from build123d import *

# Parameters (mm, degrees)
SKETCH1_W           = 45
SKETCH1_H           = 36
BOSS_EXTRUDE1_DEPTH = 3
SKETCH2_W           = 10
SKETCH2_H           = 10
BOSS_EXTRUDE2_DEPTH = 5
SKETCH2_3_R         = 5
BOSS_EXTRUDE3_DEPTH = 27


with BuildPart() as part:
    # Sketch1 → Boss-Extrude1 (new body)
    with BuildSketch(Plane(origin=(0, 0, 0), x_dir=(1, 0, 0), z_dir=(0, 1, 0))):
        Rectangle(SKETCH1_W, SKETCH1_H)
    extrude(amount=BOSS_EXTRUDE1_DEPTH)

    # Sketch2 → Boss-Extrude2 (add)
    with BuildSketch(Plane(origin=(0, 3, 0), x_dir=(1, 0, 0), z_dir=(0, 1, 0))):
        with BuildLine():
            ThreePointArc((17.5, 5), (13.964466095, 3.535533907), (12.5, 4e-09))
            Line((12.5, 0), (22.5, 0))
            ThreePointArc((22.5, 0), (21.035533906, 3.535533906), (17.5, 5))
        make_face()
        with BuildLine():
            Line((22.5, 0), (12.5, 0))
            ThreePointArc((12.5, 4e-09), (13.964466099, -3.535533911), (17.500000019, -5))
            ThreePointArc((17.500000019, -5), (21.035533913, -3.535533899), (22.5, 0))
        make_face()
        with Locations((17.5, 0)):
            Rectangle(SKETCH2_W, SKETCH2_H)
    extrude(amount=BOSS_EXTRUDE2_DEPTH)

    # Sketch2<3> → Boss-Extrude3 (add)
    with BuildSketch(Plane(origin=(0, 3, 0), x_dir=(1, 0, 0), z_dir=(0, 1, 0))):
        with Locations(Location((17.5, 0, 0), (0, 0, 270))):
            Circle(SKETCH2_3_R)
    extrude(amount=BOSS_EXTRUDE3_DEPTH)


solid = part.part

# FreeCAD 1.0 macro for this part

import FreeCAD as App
import Part
import Sketcher
from FreeCAD import Vector
Q = App.Units.Quantity

doc = App.newDocument("Part")
params = doc.addObject("Spreadsheet::Sheet", "Params")
for row, (alias, value) in enumerate([
    ("sketch1_width", "45 mm"),
    ("sketch1_height", "36 mm"),
    ("pad1_length", "3 mm"),
    ("sketch2_width", "10 mm"),
    ("pad2_length", "5 mm"),
    ("sketch3_diameter", "10 mm"),
    ("pad3_length", "27 mm"),
], start=1):
    params.set(f"A{row}", alias)
    params.set(f"B{row}", "=" + value)
    params.setAlias(f"B{row}", alias)

body = doc.addObject("PartDesign::Body", "Body")

# Sketch on XZ plane
sketch1 = body.newObject("Sketcher::SketchObject", "Sketch")
sketch1.AttachmentSupport = (doc.getObject("XZ_Plane"), [""])
sketch1.MapMode = "FlatFace"
sketch1.addGeometry(Part.LineSegment(Vector(-22.5, -18, 0), Vector(-22.5, 18, 0)), False)
sketch1.addGeometry(Part.LineSegment(Vector(-22.5, 18, 0), Vector(22.5, 18, 0)), False)
sketch1.addGeometry(Part.LineSegment(Vector(22.5, 18, 0), Vector(22.5, -18, 0)), False)
sketch1.addGeometry(Part.LineSegment(Vector(22.5, -18, 0), Vector(-22.5, -18, 0)), False)
sketch1.addConstraint(Sketcher.Constraint("Coincident", 0, 2, 1, 1))
sketch1.addConstraint(Sketcher.Constraint("Coincident", 1, 2, 2, 1))
sketch1.addConstraint(Sketcher.Constraint("Coincident", 2, 2, 3, 1))
sketch1.addConstraint(Sketcher.Constraint("Coincident", 3, 2, 0, 1))
sketch1.addConstraint(Sketcher.Constraint("Vertical", 0))
sketch1.addConstraint(Sketcher.Constraint("Horizontal", 1))
sketch1.addConstraint(Sketcher.Constraint("Vertical", 2))
sketch1.addConstraint(Sketcher.Constraint("Horizontal", 3))
sketch1.addConstraint(Sketcher.Constraint("Symmetric", 0, 2, 2, 2, -1, 1))
sketch1.addConstraint(Sketcher.Constraint("DistanceX", 1, 1, 1, 2, Q("45 mm")))
sketch1.addConstraint(Sketcher.Constraint("DistanceY", 0, 1, 0, 2, Q("36 mm")))
sketch1.setExpression("Constraints[9]", "Params.sketch1_width")
sketch1.setExpression("Constraints[10]", "Params.sketch1_height")
pad1 = body.newObject("PartDesign::Pad", "Pad")
pad1.Profile = sketch1
pad1.setExpression("Length", "Params.pad1_length")
pad1.Reversed = True

# Sketch on XZ plane
sketch2 = body.newObject("Sketcher::SketchObject", "Sketch001")
sketch2.AttachmentSupport = (doc.getObject("XZ_Plane"), [""])
sketch2.MapMode = "FlatFace"
sketch2.AttachmentOffset = App.Placement(Vector(0, 0, -3), App.Rotation())
sketch2.addGeometry(Part.LineSegment(Vector(12.5, -5, 0), Vector(12.5, 5, 0)), False)
sketch2.addGeometry(Part.LineSegment(Vector(12.5, 5, 0), Vector(22.5, 5, 0)), False)
sketch2.addGeometry(Part.LineSegment(Vector(22.5, 5, 0), Vector(22.5, -5, 0)), False)
sketch2.addGeometry(Part.LineSegment(Vector(22.5, -5, 0), Vector(12.5, -5, 0)), False)
sketch2.addConstraint(Sketcher.Constraint("Coincident", 0, 2, 1, 1))
sketch2.addConstraint(Sketcher.Constraint("Coincident", 1, 2, 2, 1))
sketch2.addConstraint(Sketcher.Constraint("Coincident", 2, 2, 3, 1))
sketch2.addConstraint(Sketcher.Constraint("Coincident", 3, 2, 0, 1))
sketch2.addConstraint(Sketcher.Constraint("Vertical", 0))
sketch2.addConstraint(Sketcher.Constraint("Horizontal", 1))
sketch2.addConstraint(Sketcher.Constraint("Vertical", 2))
sketch2.addConstraint(Sketcher.Constraint("Horizontal", 3))
sketch2.addConstraint(Sketcher.Constraint("Equal", 3, 0))
sketch2.addConstraint(Sketcher.Constraint("DistanceX", 1, 1, 1, 2, Q("10 mm")))
sketch2.addConstraint(Sketcher.Constraint("DistanceY", -1, 1, 0, 2, Q("5 mm")))
sketch2.addConstraint(Sketcher.Constraint("DistanceX", -1, 1, 0, 2, Q("12.5 mm")))
sketch2.setExpression("Constraints[9]", "Params.sketch2_width")
pad2 = body.newObject("PartDesign::Pad", "Pad001")
pad2.Profile = sketch2
pad2.setExpression("Length", "Params.pad2_length")
pad2.Reversed = True

# Sketch on XZ plane
sketch3 = body.newObject("Sketcher::SketchObject", "Sketch002")
sketch3.AttachmentSupport = (doc.getObject("XZ_Plane"), [""])
sketch3.MapMode = "FlatFace"
sketch3.AttachmentOffset = App.Placement(Vector(0, 0, -3), App.Rotation())
sketch3.addGeometry(Part.Circle(Vector(17.5, 0, 0), Vector(0, 0, 1), 5), False)
sketch3.addConstraint(Sketcher.Constraint("PointOnObject", 0, 3, -1))
sketch3.addConstraint(Sketcher.Constraint("Diameter", 0, Q("10 mm")))
sketch3.addConstraint(Sketcher.Constraint("DistanceX", -1, 1, 0, 3, Q("17.5 mm")))
sketch3.setExpression("Constraints[1]", "Params.sketch3_diameter")
pad3 = body.newObject("PartDesign::Pad", "Pad002")
pad3.Profile = sketch3
pad3.setExpression("Length", "Params.pad3_length")
pad3.Reversed = True

doc.recompute()
